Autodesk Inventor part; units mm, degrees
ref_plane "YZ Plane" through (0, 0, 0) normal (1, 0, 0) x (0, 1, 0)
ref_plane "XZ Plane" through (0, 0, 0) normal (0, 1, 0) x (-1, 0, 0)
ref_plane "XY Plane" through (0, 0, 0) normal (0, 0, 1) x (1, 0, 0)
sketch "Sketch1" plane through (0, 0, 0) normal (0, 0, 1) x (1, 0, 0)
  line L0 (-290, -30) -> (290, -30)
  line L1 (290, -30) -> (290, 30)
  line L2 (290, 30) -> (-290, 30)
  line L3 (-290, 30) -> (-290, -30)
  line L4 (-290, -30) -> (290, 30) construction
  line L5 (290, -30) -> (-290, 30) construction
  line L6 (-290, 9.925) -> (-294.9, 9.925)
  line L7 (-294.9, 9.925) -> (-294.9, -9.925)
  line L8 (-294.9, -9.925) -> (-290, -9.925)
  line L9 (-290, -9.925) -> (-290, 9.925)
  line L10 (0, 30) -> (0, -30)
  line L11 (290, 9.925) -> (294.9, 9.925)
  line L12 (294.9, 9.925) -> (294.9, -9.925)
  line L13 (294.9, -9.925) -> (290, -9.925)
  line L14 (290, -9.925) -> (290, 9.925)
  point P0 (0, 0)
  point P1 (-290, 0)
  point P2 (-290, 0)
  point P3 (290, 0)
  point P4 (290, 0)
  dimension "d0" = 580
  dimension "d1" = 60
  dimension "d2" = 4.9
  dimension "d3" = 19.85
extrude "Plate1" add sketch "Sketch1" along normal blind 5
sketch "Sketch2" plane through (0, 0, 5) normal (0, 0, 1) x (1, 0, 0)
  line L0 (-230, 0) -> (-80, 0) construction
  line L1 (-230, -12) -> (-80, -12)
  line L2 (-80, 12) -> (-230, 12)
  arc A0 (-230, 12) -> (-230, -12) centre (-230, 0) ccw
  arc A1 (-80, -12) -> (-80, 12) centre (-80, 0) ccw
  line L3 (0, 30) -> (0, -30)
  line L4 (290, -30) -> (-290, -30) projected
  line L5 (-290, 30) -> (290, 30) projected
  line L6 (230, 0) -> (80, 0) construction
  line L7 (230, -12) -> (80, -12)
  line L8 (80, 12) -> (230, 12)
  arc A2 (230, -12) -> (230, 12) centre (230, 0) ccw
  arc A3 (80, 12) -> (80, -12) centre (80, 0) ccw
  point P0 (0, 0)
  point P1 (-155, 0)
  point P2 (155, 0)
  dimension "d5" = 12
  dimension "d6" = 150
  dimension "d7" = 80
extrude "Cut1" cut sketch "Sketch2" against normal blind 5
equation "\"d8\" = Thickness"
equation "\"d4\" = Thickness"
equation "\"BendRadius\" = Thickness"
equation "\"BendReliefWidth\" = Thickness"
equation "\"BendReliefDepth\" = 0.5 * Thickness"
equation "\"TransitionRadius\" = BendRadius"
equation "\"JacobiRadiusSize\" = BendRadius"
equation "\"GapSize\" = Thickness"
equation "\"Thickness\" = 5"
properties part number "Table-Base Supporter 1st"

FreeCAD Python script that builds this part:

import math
import FreeCAD as App
import Part
import Sketcher

V = App.Vector


def add_polygon(sketch, points):
    """Adds a closed chain of lines whose ends are joined by coincident constraints."""
    first, n = sketch.GeometryCount, len(points)
    for a, b in zip(points, points[1:] + points[:1]):
        sketch.addGeometry(Part.LineSegment(App.Vector(*a, 0), App.Vector(*b, 0)), False)
    for i in range(n):
        sketch.addConstraint(Sketcher.Constraint("Coincident", first + i, 2, first + (i + 1) % n, 1))

doc = App.newDocument("Part")
params = doc.addObject("Spreadsheet::Sheet", "Params")
for row, (alias, value) in enumerate([
    ("sketch1_width", "580 mm"),
    ("sketch1_width2", "4.9 mm"),
    ("sketch1_height", "19.85 mm"),
    ("pad1_length", "5 mm"),
    ("sketch2_radius", "12 mm"),
    ("sketch2_width", "150 mm"),
    ("pocket1_length", "5 mm"),
], start=1):
    params.set(f"A{row}", alias)
    params.set(f"B{row}", "=" + value)
    params.setAlias(f"B{row}", alias)

body = doc.addObject("PartDesign::Body", "Body")

# Sketch on XY plane
sketch1 = body.newObject("Sketcher::SketchObject", "Sketch")
sketch1.AttachmentSupport = (doc.getObject("XY_Plane"), [""])
sketch1.MapMode = "FlatFace"
add_polygon(sketch1, [(-290, -9.9), (-290, -30), (290, -30), (290, -9.9), (294.9, -9.9), (294.9, 9.9), (290, 9.9), (290, 30), (-290, 30), (-290, 9.9), (-294.9, 9.9), (-294.9, -9.9)])  # lines 0-11
sketch1.addConstraint(Sketcher.Constraint("Vertical", 0))
sketch1.addConstraint(Sketcher.Constraint("Horizontal", 1))
sketch1.addConstraint(Sketcher.Constraint("Vertical", 2))
sketch1.addConstraint(Sketcher.Constraint("Horizontal", 3))
sketch1.addConstraint(Sketcher.Constraint("Vertical", 4))
sketch1.addConstraint(Sketcher.Constraint("Horizontal", 5))
sketch1.addConstraint(Sketcher.Constraint("Vertical", 6))
sketch1.addConstraint(Sketcher.Constraint("Horizontal", 7))
sketch1.addConstraint(Sketcher.Constraint("Vertical", 8))
sketch1.addConstraint(Sketcher.Constraint("Horizontal", 9))
sketch1.addConstraint(Sketcher.Constraint("Vertical", 10))
sketch1.addConstraint(Sketcher.Constraint("Horizontal", 11))
sketch1.addConstraint(Sketcher.Constraint("Symmetric", 0, 2, 6, 2, -1, 1))
sketch1.addConstraint(Sketcher.Constraint("Symmetric", 2, 2, 8, 2, -1, 1))
sketch1.addConstraint(Sketcher.Constraint("Symmetric", 4, 2, 10, 2, -1, 1))
sketch1.addConstraint(Sketcher.Constraint("Symmetric", 5, 2, 8, 2, -2))
sketch1.addConstraint(Sketcher.Constraint("DistanceX", 1, 1, 1, 2, 580.0))
sketch1.addConstraint(Sketcher.Constraint("DistanceX", 3, 1, 3, 2, 4.9))
sketch1.addConstraint(Sketcher.Constraint("DistanceY", 1, 2, 6, 2, 60.0))
sketch1.addConstraint(Sketcher.Constraint("DistanceY", 4, 1, 4, 2, 19.85))
sketch1.setExpression("Constraints[28]", "Params.sketch1_width")
sketch1.setExpression("Constraints[29]", "Params.sketch1_width2")
sketch1.setExpression("Constraints[31]", "Params.sketch1_height")
pad1 = body.newObject("PartDesign::Pad", "Pad")
pad1.Profile = sketch1
pad1.setExpression("Length", "Params.pad1_length")

# Sketch on XY plane
sketch2 = body.newObject("Sketcher::SketchObject", "Sketch001")
sketch2.AttachmentSupport = (doc.getObject("XY_Plane"), [""])
sketch2.MapMode = "FlatFace"
sketch2.AttachmentOffset = App.Placement(V(0, 0, 5), App.Rotation())
sketch2.addGeometry(Part.ArcOfCircle(Part.Circle(V(-230, 0, 0), V(0, 0, 1), 12), math.radians(90), math.radians(270)), False)
sketch2.addGeometry(Part.LineSegment(V(-230, -12, 0), V(-80, -12, 0)), False)
sketch2.addGeometry(Part.ArcOfCircle(Part.Circle(V(-80, 0, 0), V(0, 0, 1), 12), math.radians(-90), math.radians(90)), False)
sketch2.addGeometry(Part.LineSegment(V(-80, 12, 0), V(-230, 12, 0)), False)
sketch2.addGeometry(Part.LineSegment(V(80, -12, 0), V(230, -12, 0)), False)
sketch2.addGeometry(Part.ArcOfCircle(Part.Circle(V(230, 0, 0), V(0, 0, 1), 12), math.radians(-90), math.radians(90)), False)
sketch2.addGeometry(Part.LineSegment(V(230, 12, 0), V(80, 12, 0)), False)
sketch2.addGeometry(Part.ArcOfCircle(Part.Circle(V(80, 0, 0), V(0, 0, 1), 12), math.radians(90), math.radians(270)), False)
sketch2.addConstraint(Sketcher.Constraint("Tangent", 0, 2, 1, 1))
sketch2.addConstraint(Sketcher.Constraint("Tangent", 1, 2, 2, 1))
sketch2.addConstraint(Sketcher.Constraint("Tangent", 2, 2, 3, 1))
sketch2.addConstraint(Sketcher.Constraint("Tangent", 3, 2, 0, 1))
sketch2.addConstraint(Sketcher.Constraint("Tangent", 4, 2, 5, 1))
sketch2.addConstraint(Sketcher.Constraint("Tangent", 5, 2, 6, 1))
sketch2.addConstraint(Sketcher.Constraint("Tangent", 6, 2, 7, 1))
sketch2.addConstraint(Sketcher.Constraint("Tangent", 7, 2, 4, 1))
sketch2.addConstraint(Sketcher.Constraint("Horizontal", 1))
sketch2.addConstraint(Sketcher.Constraint("Horizontal", 3))
sketch2.addConstraint(Sketcher.Constraint("Horizontal", 4))
sketch2.addConstraint(Sketcher.Constraint("Horizontal", 6))
sketch2.addConstraint(Sketcher.Constraint("Equal", 2, 5))
sketch2.addConstraint(Sketcher.Constraint("Symmetric", 0, 3, 5, 3, -1, 1))
sketch2.addConstraint(Sketcher.Constraint("Symmetric", 2, 3, 7, 3, -2))
sketch2.addConstraint(Sketcher.Constraint("Radius", 0, 12.0))
sketch2.addConstraint(Sketcher.Constraint("DistanceX", 1, 1, 1, 2, 150.0))
sketch2.addConstraint(Sketcher.Constraint("DistanceX", 2, 3, -1, 1, 80.0))
sketch2.setExpression("Constraints[15]", "Params.sketch2_radius")
sketch2.setExpression("Constraints[16]", "Params.sketch2_width")
pocket1 = body.newObject("PartDesign::Pocket", "Pocket")
pocket1.Profile = sketch2
pocket1.setExpression("Length", "Params.pocket1_length")

doc.recompute()
